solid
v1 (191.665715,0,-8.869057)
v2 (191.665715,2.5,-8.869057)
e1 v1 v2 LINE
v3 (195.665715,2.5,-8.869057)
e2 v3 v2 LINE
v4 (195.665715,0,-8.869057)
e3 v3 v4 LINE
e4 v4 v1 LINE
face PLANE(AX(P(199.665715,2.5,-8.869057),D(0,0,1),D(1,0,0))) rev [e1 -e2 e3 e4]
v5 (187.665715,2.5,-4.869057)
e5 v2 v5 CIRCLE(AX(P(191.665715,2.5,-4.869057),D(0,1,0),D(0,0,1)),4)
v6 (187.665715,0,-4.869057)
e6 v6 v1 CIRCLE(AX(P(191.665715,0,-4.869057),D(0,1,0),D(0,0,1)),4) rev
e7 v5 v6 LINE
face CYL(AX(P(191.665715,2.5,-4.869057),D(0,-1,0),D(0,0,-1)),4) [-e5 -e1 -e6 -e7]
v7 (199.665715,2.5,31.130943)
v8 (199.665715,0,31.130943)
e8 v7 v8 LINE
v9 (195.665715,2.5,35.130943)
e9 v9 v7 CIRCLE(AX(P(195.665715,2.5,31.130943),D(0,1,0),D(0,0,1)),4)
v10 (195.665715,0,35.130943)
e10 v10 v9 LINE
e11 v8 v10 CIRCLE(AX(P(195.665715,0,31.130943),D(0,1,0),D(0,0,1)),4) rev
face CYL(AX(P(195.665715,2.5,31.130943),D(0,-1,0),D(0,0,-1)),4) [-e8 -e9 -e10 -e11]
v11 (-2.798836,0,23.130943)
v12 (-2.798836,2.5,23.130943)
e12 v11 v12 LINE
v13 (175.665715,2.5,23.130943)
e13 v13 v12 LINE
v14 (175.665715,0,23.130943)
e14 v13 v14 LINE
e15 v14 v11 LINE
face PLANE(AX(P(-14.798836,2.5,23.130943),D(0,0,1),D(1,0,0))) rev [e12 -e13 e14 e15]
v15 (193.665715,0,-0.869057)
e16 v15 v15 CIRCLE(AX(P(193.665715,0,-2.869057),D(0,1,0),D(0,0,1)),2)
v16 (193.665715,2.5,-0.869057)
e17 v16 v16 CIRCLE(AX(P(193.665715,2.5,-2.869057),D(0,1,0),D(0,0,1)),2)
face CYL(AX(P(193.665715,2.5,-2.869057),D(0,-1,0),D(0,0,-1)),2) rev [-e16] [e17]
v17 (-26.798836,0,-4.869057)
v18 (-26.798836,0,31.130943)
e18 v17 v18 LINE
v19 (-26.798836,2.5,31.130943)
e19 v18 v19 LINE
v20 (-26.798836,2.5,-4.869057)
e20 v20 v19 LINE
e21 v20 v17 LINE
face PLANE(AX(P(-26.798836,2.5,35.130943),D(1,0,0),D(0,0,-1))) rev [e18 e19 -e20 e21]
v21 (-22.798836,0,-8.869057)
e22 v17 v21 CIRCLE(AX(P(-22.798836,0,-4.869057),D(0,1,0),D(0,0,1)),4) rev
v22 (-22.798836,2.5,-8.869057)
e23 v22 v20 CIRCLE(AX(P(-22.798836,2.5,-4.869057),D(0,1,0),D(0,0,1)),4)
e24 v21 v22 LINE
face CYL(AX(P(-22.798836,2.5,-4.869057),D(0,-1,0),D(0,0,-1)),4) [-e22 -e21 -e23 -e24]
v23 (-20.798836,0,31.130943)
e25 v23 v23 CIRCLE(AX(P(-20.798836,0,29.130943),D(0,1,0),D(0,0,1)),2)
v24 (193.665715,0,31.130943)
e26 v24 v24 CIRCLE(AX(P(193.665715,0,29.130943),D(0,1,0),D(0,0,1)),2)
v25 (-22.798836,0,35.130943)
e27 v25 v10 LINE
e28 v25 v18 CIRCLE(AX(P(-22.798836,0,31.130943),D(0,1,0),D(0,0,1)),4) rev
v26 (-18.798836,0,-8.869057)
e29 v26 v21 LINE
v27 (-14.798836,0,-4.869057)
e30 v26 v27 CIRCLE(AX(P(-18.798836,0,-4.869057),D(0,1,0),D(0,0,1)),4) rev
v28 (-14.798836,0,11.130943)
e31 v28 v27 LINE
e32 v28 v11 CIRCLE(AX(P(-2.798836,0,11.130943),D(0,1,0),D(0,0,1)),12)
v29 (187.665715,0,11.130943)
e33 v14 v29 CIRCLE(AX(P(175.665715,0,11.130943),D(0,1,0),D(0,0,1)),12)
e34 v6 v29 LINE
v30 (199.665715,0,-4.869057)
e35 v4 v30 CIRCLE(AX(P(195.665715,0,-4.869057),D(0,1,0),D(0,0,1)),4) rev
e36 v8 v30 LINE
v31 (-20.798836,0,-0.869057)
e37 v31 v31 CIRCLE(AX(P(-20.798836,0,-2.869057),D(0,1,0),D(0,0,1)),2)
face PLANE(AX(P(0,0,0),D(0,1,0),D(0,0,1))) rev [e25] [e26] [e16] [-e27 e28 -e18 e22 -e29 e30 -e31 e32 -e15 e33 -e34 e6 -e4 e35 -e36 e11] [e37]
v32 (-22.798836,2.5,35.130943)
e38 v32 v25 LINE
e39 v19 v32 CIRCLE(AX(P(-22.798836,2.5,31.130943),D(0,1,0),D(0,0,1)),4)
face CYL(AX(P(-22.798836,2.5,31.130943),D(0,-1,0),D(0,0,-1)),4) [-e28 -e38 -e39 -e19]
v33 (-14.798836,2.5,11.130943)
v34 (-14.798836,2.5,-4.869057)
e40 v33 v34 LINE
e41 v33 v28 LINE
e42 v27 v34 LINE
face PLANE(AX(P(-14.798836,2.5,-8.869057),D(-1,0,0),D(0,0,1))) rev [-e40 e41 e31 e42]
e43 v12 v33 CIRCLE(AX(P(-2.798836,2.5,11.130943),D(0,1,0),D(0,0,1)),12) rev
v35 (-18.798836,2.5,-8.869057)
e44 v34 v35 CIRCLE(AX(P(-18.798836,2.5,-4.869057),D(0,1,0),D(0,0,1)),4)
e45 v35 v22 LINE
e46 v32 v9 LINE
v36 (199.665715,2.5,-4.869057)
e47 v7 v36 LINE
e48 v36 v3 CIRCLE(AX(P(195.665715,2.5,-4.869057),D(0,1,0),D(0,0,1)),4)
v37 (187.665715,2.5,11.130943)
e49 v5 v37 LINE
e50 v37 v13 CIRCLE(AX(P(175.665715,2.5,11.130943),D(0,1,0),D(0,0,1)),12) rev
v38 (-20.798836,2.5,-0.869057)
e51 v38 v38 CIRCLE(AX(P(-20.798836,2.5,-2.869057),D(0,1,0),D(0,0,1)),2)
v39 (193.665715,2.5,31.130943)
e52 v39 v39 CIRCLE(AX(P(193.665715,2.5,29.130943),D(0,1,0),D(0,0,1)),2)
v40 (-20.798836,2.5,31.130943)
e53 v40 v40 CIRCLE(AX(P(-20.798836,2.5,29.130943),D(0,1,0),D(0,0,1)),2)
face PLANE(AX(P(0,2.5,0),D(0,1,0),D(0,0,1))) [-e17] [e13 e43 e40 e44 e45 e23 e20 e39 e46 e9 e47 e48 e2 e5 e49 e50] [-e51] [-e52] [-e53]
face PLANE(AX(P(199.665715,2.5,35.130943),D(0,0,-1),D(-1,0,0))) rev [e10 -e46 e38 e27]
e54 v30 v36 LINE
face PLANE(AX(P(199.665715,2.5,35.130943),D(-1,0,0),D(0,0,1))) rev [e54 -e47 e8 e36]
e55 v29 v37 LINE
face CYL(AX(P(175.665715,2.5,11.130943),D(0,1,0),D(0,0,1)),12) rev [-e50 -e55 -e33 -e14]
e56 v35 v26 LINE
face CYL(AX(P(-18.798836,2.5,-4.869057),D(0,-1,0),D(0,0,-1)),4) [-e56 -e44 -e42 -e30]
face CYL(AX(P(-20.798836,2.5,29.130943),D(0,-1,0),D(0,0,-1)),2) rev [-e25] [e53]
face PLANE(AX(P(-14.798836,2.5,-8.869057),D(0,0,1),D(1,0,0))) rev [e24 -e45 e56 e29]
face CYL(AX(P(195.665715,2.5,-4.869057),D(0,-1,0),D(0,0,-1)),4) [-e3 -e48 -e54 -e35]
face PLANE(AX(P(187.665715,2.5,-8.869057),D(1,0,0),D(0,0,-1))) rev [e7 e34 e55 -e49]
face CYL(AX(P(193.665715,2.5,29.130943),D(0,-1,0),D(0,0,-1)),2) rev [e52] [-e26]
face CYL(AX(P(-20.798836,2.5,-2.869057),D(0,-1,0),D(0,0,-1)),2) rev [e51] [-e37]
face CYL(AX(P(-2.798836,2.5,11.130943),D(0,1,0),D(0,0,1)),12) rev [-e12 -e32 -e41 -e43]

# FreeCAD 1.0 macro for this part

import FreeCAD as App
import Part
import Sketcher
from FreeCAD import Vector


def edges_at(feature, points):
    """Names of the edges that pass closest to the given points."""
    edges = feature.Shape.Edges
    near = lambda p: min(range(len(edges)), key=lambda i: edges[i].distToShape(Part.Vertex(*p))[0])
    return sorted({f"Edge{near(p) + 1}" for p in points})

doc = App.newDocument("Part")
body = doc.addObject("PartDesign::Body", "Body")

# Sketch on XZ plane
sketch1 = doc.addObject("Sketcher::SketchObject", "Sketch")
body.addObject(sketch1)
sketch1.AttachmentSupport = (doc.XZ_Plane, [""])
sketch1.MapMode = "FlatFace"
sketch1.addGeometry([
    Part.LineSegment(Vector(-14.798836, -8.869057, 0), Vector(-26.798836, -8.869057, 0)),  # 0
    Part.LineSegment(Vector(-26.798836, -8.869057, 0), Vector(-26.798836, 35.130943, 0)),  # 1
    Part.LineSegment(Vector(-26.798836, 35.130943, 0), Vector(199.665715, 35.130943, 0)),  # 2
    Part.LineSegment(Vector(199.665715, 35.130943, 0), Vector(199.665715, -8.869057, 0)),  # 3
    Part.LineSegment(Vector(199.665715, -8.869057, 0), Vector(187.665715, -8.869057, 0)),  # 4
    Part.LineSegment(Vector(187.665715, -8.869057, 0), Vector(187.665715, 23.130943, 0)),  # 5
    Part.LineSegment(Vector(187.665715, 23.130943, 0), Vector(-14.798836, 23.130943, 0)),  # 6
    Part.LineSegment(Vector(-14.798836, 23.130943, 0), Vector(-14.798836, -8.869057, 0)),  # 7
    Part.Circle(Vector(-20.798836, 29.130943, 0), Vector(0, 0, 1), 2),  # 8
    Part.Circle(Vector(193.665715, 29.130943, 0), Vector(0, 0, 1), 2),  # 9
    Part.Circle(Vector(-20.798836, -2.869057, 0), Vector(0, 0, 1), 2),  # 10
    Part.Circle(Vector(193.665715, -2.869057, 0), Vector(0, 0, 1), 2),  # 11
], False)
sketch1.addConstraint([
    Sketcher.Constraint("Coincident", 0, 2, 1, 1),
    Sketcher.Constraint("Coincident", 1, 2, 2, 1),
    Sketcher.Constraint("Coincident", 2, 2, 3, 1),
    Sketcher.Constraint("Coincident", 3, 2, 4, 1),
    Sketcher.Constraint("Coincident", 4, 2, 5, 1),
    Sketcher.Constraint("Coincident", 5, 2, 6, 1),
    Sketcher.Constraint("Coincident", 6, 2, 7, 1),
    Sketcher.Constraint("Coincident", 7, 2, 0, 1),
    Sketcher.Constraint("Horizontal", 0),
    Sketcher.Constraint("Vertical", 1),
    Sketcher.Constraint("Horizontal", 2),
    Sketcher.Constraint("Vertical", 3),
    Sketcher.Constraint("Horizontal", 4),
    Sketcher.Constraint("Vertical", 5),
    Sketcher.Constraint("Horizontal", 6),
    Sketcher.Constraint("Vertical", 7),
    Sketcher.Constraint("Equal", 8, 9),
    Sketcher.Constraint("Equal", 9, 10),
    Sketcher.Constraint("Equal", 10, 11),
    Sketcher.Constraint("Horizontal", 8, 3, 9, 3),
    Sketcher.Constraint("Horizontal", 10, 3, 11, 3),
    Sketcher.Constraint("Horizontal", 0, 2, 3, 2),
    Sketcher.Constraint("Vertical", 8, 3, 10, 3),
    Sketcher.Constraint("Vertical", 9, 3, 11, 3),
    Sketcher.Constraint("Equal", 0, 4),
    Sketcher.Constraint("Diameter", 8, 4.0),
    Sketcher.Constraint("DistanceX", 0, 2, 0, 1, 12.0),
    Sketcher.Constraint("DistanceY", 1, 1, 1, 2, 44.0),
    Sketcher.Constraint("DistanceY", 5, 1, 5, 2, 32.0),
    Sketcher.Constraint("DistanceY", 10, 3, 8, 3, 32.0),
    Sketcher.Constraint("DistanceX", 0, 2, 10, 3, 6.0),
    Sketcher.Constraint("DistanceY", 0, 2, 10, 3, 6.0),
    Sketcher.Constraint("DistanceX", 9, 3, 2, 2, 6.0),
    Sketcher.Constraint("DistanceX", 2, 1, 2, 2, 226.464551),
    Sketcher.Constraint("DistanceX", 8, 3, -1, 1, 20.798836),
    Sketcher.Constraint("DistanceY", -1, 1, 8, 3, 29.130943),
])
pad1 = doc.addObject("PartDesign::Pad", "Pad")
body.addObject(pad1)
pad1.Profile = sketch1
pad1.Length = 2.5
pad1.Reversed = True
doc.recompute()

fillet = doc.addObject("PartDesign::Fillet", "Fillet")
body.addObject(fillet)
fillet.Base = (pad1, edges_at(pad1, [
    (-26.799, 1.25, -8.869),
    (-14.799, 1.25, -8.869),
    (187.666, 1.25, -8.869),
    (199.666, 1.25, -8.869),
    (199.666, 1.25, 35.131),
    (-26.799, 1.25, 35.131),
]))
fillet.Radius = 4
doc.recompute()

fillet2 = doc.addObject("PartDesign::Fillet", "Fillet001")
body.addObject(fillet2)
fillet2.Base = (fillet, edges_at(fillet, [(-14.799, 1.25, 23.131), (187.666, 1.25, 23.131)]))
fillet2.Radius = 12

doc.recompute()
